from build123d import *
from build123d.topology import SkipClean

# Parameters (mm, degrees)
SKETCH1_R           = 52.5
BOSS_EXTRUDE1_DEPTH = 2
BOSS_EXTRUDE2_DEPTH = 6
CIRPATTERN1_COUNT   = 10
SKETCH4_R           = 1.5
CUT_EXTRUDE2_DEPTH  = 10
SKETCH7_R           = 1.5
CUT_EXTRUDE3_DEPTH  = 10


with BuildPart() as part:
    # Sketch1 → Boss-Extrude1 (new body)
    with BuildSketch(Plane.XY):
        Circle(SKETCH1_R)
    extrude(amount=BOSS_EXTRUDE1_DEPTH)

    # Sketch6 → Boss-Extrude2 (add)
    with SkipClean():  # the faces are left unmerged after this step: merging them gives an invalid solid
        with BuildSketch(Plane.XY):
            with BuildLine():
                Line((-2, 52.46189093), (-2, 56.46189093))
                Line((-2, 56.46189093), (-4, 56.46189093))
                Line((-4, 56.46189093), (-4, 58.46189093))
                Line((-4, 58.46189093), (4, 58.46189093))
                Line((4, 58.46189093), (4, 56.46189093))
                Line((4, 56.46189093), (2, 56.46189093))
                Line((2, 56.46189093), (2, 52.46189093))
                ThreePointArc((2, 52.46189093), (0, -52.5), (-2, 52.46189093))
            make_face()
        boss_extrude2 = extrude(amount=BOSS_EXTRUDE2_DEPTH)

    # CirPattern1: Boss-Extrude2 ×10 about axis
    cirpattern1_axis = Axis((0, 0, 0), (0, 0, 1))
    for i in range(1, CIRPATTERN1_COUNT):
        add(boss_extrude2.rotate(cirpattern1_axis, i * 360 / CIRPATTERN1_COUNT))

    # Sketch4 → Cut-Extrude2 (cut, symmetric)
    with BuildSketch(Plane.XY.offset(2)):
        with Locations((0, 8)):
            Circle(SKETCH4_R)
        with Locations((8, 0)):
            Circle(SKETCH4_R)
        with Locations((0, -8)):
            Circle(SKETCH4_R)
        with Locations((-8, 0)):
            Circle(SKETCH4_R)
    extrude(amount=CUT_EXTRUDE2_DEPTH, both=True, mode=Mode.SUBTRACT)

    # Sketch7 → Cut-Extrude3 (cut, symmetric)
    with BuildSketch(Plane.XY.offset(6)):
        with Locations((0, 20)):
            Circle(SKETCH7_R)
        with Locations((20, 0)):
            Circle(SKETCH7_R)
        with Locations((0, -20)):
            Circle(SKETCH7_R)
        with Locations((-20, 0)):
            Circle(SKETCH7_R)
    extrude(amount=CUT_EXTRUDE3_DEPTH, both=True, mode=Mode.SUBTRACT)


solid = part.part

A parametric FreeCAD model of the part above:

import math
import FreeCAD as App
import Part
import Sketcher

V = App.Vector
Q = App.Units.Quantity

doc = App.newDocument("Part")
body = doc.addObject("PartDesign::Body", "Body")

# Sketch on XY plane
sketch1 = body.newObject("Sketcher::SketchObject", "Sketch")
sketch1.AttachmentSupport = (doc.getObject("XY_Plane"), [""])
sketch1.MapMode = "FlatFace"
sketch1.addGeometry(Part.Circle(V(0, 0, 0), V(0, 0, 1), 52), False)
sketch1.addConstraint([
    Sketcher.Constraint("Coincident", 0, 3, -1, 1),
    Sketcher.Constraint("Diameter", 0, Q("105 mm")),
])
pad1 = body.newObject("PartDesign::Pad", "Pad")
pad1.Profile = sketch1
pad1.Length = 2

# Sketch on XY plane
sketch2 = body.newObject("Sketcher::SketchObject", "Sketch001")
sketch2.AttachmentSupport = (doc.getObject("XY_Plane"), [""])
sketch2.MapMode = "FlatFace"
sketch2.addGeometry([
    Part.LineSegment(V(-2, 56.5, 0), V(-2, 52.5, 0)),  # 0
    Part.ArcOfCircle(Part.Circle(V(0, 0, 0), V(0, 0, 1), 52.5), math.radians(92), math.radians(448)),  # 1
    Part.LineSegment(V(2, 52.5, 0), V(2, 56.5, 0)),  # 2
    Part.LineSegment(V(2, 56.5, 0), V(4, 56.5, 0)),  # 3
    Part.LineSegment(V(4, 56.5, 0), V(4, 58.5, 0)),  # 4
    Part.LineSegment(V(4, 58.5, 0), V(-4, 58.5, 0)),  # 5
    Part.LineSegment(V(-4, 58.5, 0), V(-4, 56.5, 0)),  # 6
    Part.LineSegment(V(-4, 56.5, 0), V(-2, 56.5, 0)),  # 7
], False)
sketch2.addConstraint([
    Sketcher.Constraint("Coincident", 0, 2, 1, 1),
    Sketcher.Constraint("Coincident", 1, 2, 2, 1),
    Sketcher.Constraint("Coincident", 2, 2, 3, 1),
    Sketcher.Constraint("Coincident", 3, 2, 4, 1),
    Sketcher.Constraint("Coincident", 4, 2, 5, 1),
    Sketcher.Constraint("Coincident", 5, 2, 6, 1),
    Sketcher.Constraint("Coincident", 6, 2, 7, 1),
    Sketcher.Constraint("Coincident", 7, 2, 0, 1),
    Sketcher.Constraint("Vertical", 0),
    Sketcher.Constraint("Vertical", 2),
    Sketcher.Constraint("Horizontal", 3),
    Sketcher.Constraint("Vertical", 4),
    Sketcher.Constraint("Horizontal", 5),
    Sketcher.Constraint("Vertical", 6),
    Sketcher.Constraint("Horizontal", 7),
    Sketcher.Constraint("Coincident", 1, 3, -1, 1),
    Sketcher.Constraint("Symmetric", 3, 2, 6, 2, -2),
    Sketcher.Constraint("Horizontal", 0, 2, 1, 2),
    Sketcher.Constraint("Equal", 7, 4),
    Sketcher.Constraint("Radius", 1, Q("52.5 mm")),
    Sketcher.Constraint("DistanceX", 3, 1, 3, 2, Q("2 mm")),
    Sketcher.Constraint("DistanceX", 5, 2, 5, 1, Q("8 mm")),
    Sketcher.Constraint("DistanceY", 0, 2, 0, 1, Q("4 mm")),
])
pad2 = body.newObject("PartDesign::Pad", "Pad001")
pad2.Profile = sketch2
pad2.Length = 6
doc.recompute()

polarpattern = body.newObject("PartDesign::PolarPattern", "PolarPattern")
polarpattern.Originals = [pad2]
polarpattern.Axis = (doc.getObject("Z_Axis"), [""])
polarpattern.Angle = 360
polarpattern.Occurrences = 10
body.Tip = polarpattern

# Sketch on XY plane
sketch3 = body.newObject("Sketcher::SketchObject", "Sketch002")
sketch3.AttachmentSupport = (doc.getObject("XY_Plane"), [""])
sketch3.MapMode = "FlatFace"
sketch3.AttachmentOffset = App.Placement(V(0, 0, 2), App.Rotation())
sketch3.addGeometry([
    Part.Circle(V(0, 8, 0), V(0, 0, 1), 1.5),
    Part.Circle(V(8, 0, 0), V(0, 0, 1), 1.5),
    Part.Circle(V(0, -8, 0), V(0, 0, 1), 1.5),
    Part.Circle(V(-8, 0, 0), V(0, 0, 1), 1.5),
], False)
sketch3.addConstraint([
    Sketcher.Constraint("Equal", 0, 1),
    Sketcher.Constraint("Equal", 1, 2),
    Sketcher.Constraint("Equal", 2, 3),
    Sketcher.Constraint("Symmetric", 0, 3, 2, 3, -1, 1),
    Sketcher.Constraint("Symmetric", 1, 3, 3, 3, -1, 1),
    Sketcher.Constraint("PointOnObject", 0, 3, -2),
    Sketcher.Constraint("PointOnObject", 1, 3, -1),
    Sketcher.Constraint("Diameter", 0, Q("3 mm")),
    Sketcher.Constraint("DistanceY", -1, 1, 0, 3, Q("8 mm")),
    Sketcher.Constraint("DistanceX", -1, 1, 1, 3, Q("8 mm")),
])
pocket1 = body.newObject("PartDesign::Pocket", "Pocket")
pocket1.Profile = sketch3
pocket1.Length = 20
pocket1.Midplane = True

# Sketch on XY plane
sketch4 = body.newObject("Sketcher::SketchObject", "Sketch003")
sketch4.AttachmentSupport = (doc.getObject("XY_Plane"), [""])
sketch4.MapMode = "FlatFace"
sketch4.AttachmentOffset = App.Placement(V(0, 0, 6), App.Rotation())
sketch4.addGeometry([
    Part.Circle(V(0, 20, 0), V(0, 0, 1), 1.5),
    Part.Circle(V(20, 0, 0), V(0, 0, 1), 1.5),
    Part.Circle(V(0, -20, 0), V(0, 0, 1), 1.5),
    Part.Circle(V(-20, 0, 0), V(0, 0, 1), 1.5),
], False)
sketch4.addConstraint([
    Sketcher.Constraint("Equal", 0, 1),
    Sketcher.Constraint("Equal", 1, 2),
    Sketcher.Constraint("Equal", 2, 3),
    Sketcher.Constraint("Symmetric", 0, 3, 2, 3, -1, 1),
    Sketcher.Constraint("Symmetric", 1, 3, 3, 3, -1, 1),
    Sketcher.Constraint("PointOnObject", 0, 3, -2),
    Sketcher.Constraint("PointOnObject", 1, 3, -1),
    Sketcher.Constraint("Diameter", 0, Q("3 mm")),
    Sketcher.Constraint("DistanceY", -1, 1, 0, 3, Q("20 mm")),
    Sketcher.Constraint("DistanceX", -1, 1, 1, 3, Q("20 mm")),
])
pocket2 = body.newObject("PartDesign::Pocket", "Pocket001")
pocket2.Profile = sketch4
pocket2.Length = 20
pocket2.Midplane = True

doc.recompute()
